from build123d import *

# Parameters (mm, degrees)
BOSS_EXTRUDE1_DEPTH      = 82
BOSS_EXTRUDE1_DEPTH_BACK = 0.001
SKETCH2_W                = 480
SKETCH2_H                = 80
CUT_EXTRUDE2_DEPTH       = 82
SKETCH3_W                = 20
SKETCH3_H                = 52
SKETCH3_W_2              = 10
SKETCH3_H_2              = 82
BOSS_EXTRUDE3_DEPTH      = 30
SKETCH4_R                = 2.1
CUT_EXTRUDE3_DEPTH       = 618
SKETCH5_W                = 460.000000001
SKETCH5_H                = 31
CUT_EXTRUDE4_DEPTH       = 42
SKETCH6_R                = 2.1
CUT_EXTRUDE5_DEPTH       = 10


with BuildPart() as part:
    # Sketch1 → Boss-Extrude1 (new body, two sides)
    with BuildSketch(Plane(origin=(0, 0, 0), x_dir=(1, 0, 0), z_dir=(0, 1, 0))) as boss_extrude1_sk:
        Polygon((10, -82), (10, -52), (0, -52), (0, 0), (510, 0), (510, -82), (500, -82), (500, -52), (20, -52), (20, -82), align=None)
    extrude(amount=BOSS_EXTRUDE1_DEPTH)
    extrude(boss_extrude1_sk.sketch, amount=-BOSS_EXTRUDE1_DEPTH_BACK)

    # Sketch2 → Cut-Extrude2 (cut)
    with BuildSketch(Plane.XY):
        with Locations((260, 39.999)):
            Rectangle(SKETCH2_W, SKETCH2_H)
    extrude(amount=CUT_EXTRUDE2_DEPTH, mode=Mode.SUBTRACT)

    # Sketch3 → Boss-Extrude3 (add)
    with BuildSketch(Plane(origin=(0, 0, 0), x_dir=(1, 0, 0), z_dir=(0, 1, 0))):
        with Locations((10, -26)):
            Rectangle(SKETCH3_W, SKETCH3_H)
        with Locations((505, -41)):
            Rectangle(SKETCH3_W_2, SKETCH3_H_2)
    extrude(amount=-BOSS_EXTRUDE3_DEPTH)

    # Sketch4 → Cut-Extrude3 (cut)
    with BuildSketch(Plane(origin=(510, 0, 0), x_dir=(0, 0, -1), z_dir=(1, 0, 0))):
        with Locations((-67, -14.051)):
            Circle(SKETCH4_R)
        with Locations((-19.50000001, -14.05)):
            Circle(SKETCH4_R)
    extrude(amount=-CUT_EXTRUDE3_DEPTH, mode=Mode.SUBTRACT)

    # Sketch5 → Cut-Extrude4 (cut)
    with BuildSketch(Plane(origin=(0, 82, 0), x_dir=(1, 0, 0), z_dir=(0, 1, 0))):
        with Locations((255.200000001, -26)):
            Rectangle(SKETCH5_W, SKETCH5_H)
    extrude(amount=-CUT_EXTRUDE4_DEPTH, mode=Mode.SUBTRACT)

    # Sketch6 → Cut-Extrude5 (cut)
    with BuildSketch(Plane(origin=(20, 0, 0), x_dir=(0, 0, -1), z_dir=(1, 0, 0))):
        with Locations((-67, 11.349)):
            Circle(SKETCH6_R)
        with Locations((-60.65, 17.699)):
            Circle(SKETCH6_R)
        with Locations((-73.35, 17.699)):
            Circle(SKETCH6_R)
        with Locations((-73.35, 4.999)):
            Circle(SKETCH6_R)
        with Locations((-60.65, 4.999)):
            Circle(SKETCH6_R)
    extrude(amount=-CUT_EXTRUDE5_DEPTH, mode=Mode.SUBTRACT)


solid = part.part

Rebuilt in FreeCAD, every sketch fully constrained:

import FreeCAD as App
import Part
import Sketcher
Q = App.Units.Quantity

doc = App.newDocument("Part")
body = doc.addObject("PartDesign::Body", "Body")

sketch1 = doc.addObject("Sketcher::SketchObject", "Sketch")
body.addObject(sketch1)
sketch1.AttachmentSupport = (doc.XZ_Plane, [""])
sketch1.MapMode = "FlatFace"
sketch1.addGeometry(Part.LineSegment(App.Vector(10, 52, 0), App.Vector(10, 82, 0)), False)
sketch1.addGeometry(Part.LineSegment(App.Vector(10, 82, 0), App.Vector(20, 82, 0)), False)
sketch1.addGeometry(Part.LineSegment(App.Vector(20, 82, 0), App.Vector(20, 52, 0)), False)
sketch1.addGeometry(Part.LineSegment(App.Vector(20, 52, 0), App.Vector(500, 52, 0)), False)
sketch1.addGeometry(Part.LineSegment(App.Vector(500, 52, 0), App.Vector(500, 82, 0)), False)
sketch1.addGeometry(Part.LineSegment(App.Vector(500, 82, 0), App.Vector(510, 82, 0)), False)
sketch1.addGeometry(Part.LineSegment(App.Vector(510, 82, 0), App.Vector(510, 0, 0)), False)
sketch1.addGeometry(Part.LineSegment(App.Vector(510, 0, 0), App.Vector(0, 0, 0)), False)
sketch1.addGeometry(Part.LineSegment(App.Vector(0, 0, 0), App.Vector(0, 52, 0)), False)
sketch1.addGeometry(Part.LineSegment(App.Vector(0, 52, 0), App.Vector(10, 52, 0)), False)
sketch1.addConstraint(Sketcher.Constraint("Coincident", 0, 2, 1, 1))
sketch1.addConstraint(Sketcher.Constraint("Coincident", 1, 2, 2, 1))
sketch1.addConstraint(Sketcher.Constraint("Coincident", 2, 2, 3, 1))
sketch1.addConstraint(Sketcher.Constraint("Coincident", 3, 2, 4, 1))
sketch1.addConstraint(Sketcher.Constraint("Coincident", 4, 2, 5, 1))
sketch1.addConstraint(Sketcher.Constraint("Coincident", 5, 2, 6, 1))
sketch1.addConstraint(Sketcher.Constraint("Coincident", 6, 2, 7, 1))
sketch1.addConstraint(Sketcher.Constraint("Coincident", 7, 2, 8, 1))
sketch1.addConstraint(Sketcher.Constraint("Coincident", 8, 2, 9, 1))
sketch1.addConstraint(Sketcher.Constraint("Coincident", 9, 2, 0, 1))
sketch1.addConstraint(Sketcher.Constraint("Vertical", 0))
sketch1.addConstraint(Sketcher.Constraint("Horizontal", 1))
sketch1.addConstraint(Sketcher.Constraint("Vertical", 2))
sketch1.addConstraint(Sketcher.Constraint("Horizontal", 3))
sketch1.addConstraint(Sketcher.Constraint("Vertical", 4))
sketch1.addConstraint(Sketcher.Constraint("Horizontal", 5))
sketch1.addConstraint(Sketcher.Constraint("Vertical", 6))
sketch1.addConstraint(Sketcher.Constraint("Horizontal", 7))
sketch1.addConstraint(Sketcher.Constraint("Vertical", 8))
sketch1.addConstraint(Sketcher.Constraint("Horizontal", 9))
sketch1.addConstraint(Sketcher.Constraint("Coincident", 7, 2, -1, 1))
sketch1.addConstraint(Sketcher.Constraint("Horizontal", 1, 2, 4, 2))
sketch1.addConstraint(Sketcher.Constraint("Horizontal", 3, 2, 8, 2))
sketch1.addConstraint(Sketcher.Constraint("Equal", 1, 5))
sketch1.addConstraint(Sketcher.Constraint("Equal", 5, 9))
sketch1.addConstraint(Sketcher.Constraint("DistanceX", 1, 1, 1, 2, Q("10 mm")))
sketch1.addConstraint(Sketcher.Constraint("DistanceX", 3, 1, 3, 2, Q("480 mm")))
sketch1.addConstraint(Sketcher.Constraint("DistanceY", 0, 1, 0, 2, Q("30 mm")))
sketch1.addConstraint(Sketcher.Constraint("DistanceY", 6, 2, 6, 1, Q("82 mm")))
pad1 = doc.addObject("PartDesign::Pad", "Pad")
body.addObject(pad1)
pad1.Profile = sketch1
pad1.Type = "TwoLengths"
pad1.Length = 82
pad1.Length2 = 0.001
pad1.Reversed = True

sketch2 = doc.addObject("Sketcher::SketchObject", "Sketch001")
body.addObject(sketch2)
sketch2.AttachmentSupport = (doc.XY_Plane, [""])
sketch2.MapMode = "FlatFace"
sketch2.addGeometry(Part.LineSegment(App.Vector(20, 79.999, 0), App.Vector(20, -0.001, 0)), False)
sketch2.addGeometry(Part.LineSegment(App.Vector(20, -0.001, 0), App.Vector(500, -0.001, 0)), False)
sketch2.addGeometry(Part.LineSegment(App.Vector(500, -0.001, 0), App.Vector(500, 79.999, 0)), False)
sketch2.addGeometry(Part.LineSegment(App.Vector(500, 79.999, 0), App.Vector(20, 79.999, 0)), False)
sketch2.addConstraint(Sketcher.Constraint("Coincident", 0, 2, 1, 1))
sketch2.addConstraint(Sketcher.Constraint("Coincident", 1, 2, 2, 1))
sketch2.addConstraint(Sketcher.Constraint("Coincident", 2, 2, 3, 1))
sketch2.addConstraint(Sketcher.Constraint("Coincident", 3, 2, 0, 1))
sketch2.addConstraint(Sketcher.Constraint("Vertical", 0))
sketch2.addConstraint(Sketcher.Constraint("Horizontal", 1))
sketch2.addConstraint(Sketcher.Constraint("Vertical", 2))
sketch2.addConstraint(Sketcher.Constraint("Horizontal", 3))
sketch2.addConstraint(Sketcher.Constraint("DistanceX", 1, 1, 1, 2, Q("480 mm")))
sketch2.addConstraint(Sketcher.Constraint("DistanceY", 0, 2, 0, 1, Q("80 mm")))
sketch2.addConstraint(Sketcher.Constraint("DistanceX", -1, 1, 0, 2, Q("20 mm")))
sketch2.addConstraint(Sketcher.Constraint("DistanceY", 0, 2, -1, 1, Q("0.001 mm")))
pocket1 = doc.addObject("PartDesign::Pocket", "Pocket")
body.addObject(pocket1)
pocket1.Profile = sketch2
pocket1.Length = 82
pocket1.Reversed = True

sketch3 = doc.addObject("Sketcher::SketchObject", "Sketch002")
body.addObject(sketch3)
sketch3.AttachmentSupport = (doc.XZ_Plane, [""])
sketch3.MapMode = "FlatFace"
sketch3.addGeometry(Part.LineSegment(App.Vector(0, 0, 0), App.Vector(0, 52, 0)), False)
sketch3.addGeometry(Part.LineSegment(App.Vector(0, 52, 0), App.Vector(20, 52, 0)), False)
sketch3.addGeometry(Part.LineSegment(App.Vector(20, 52, 0), App.Vector(20, 0, 0)), False)
sketch3.addGeometry(Part.LineSegment(App.Vector(20, 0, 0), App.Vector(0, 0, 0)), False)
sketch3.addGeometry(Part.LineSegment(App.Vector(500, 0, 0), App.Vector(500, 82, 0)), False)
sketch3.addGeometry(Part.LineSegment(App.Vector(500, 82, 0), App.Vector(510, 82, 0)), False)
sketch3.addGeometry(Part.LineSegment(App.Vector(510, 82, 0), App.Vector(510, 0, 0)), False)
sketch3.addGeometry(Part.LineSegment(App.Vector(510, 0, 0), App.Vector(500, 0, 0)), False)
sketch3.addConstraint(Sketcher.Constraint("Coincident", 0, 2, 1, 1))
sketch3.addConstraint(Sketcher.Constraint("Coincident", 1, 2, 2, 1))
sketch3.addConstraint(Sketcher.Constraint("Coincident", 2, 2, 3, 1))
sketch3.addConstraint(Sketcher.Constraint("Coincident", 3, 2, 0, 1))
sketch3.addConstraint(Sketcher.Constraint("Coincident", 4, 2, 5, 1))
sketch3.addConstraint(Sketcher.Constraint("Coincident", 5, 2, 6, 1))
sketch3.addConstraint(Sketcher.Constraint("Coincident", 6, 2, 7, 1))
sketch3.addConstraint(Sketcher.Constraint("Coincident", 7, 2, 4, 1))
sketch3.addConstraint(Sketcher.Constraint("Vertical", 0))
sketch3.addConstraint(Sketcher.Constraint("Horizontal", 1))
sketch3.addConstraint(Sketcher.Constraint("Vertical", 2))
sketch3.addConstraint(Sketcher.Constraint("Horizontal", 3))
sketch3.addConstraint(Sketcher.Constraint("Vertical", 4))
sketch3.addConstraint(Sketcher.Constraint("Horizontal", 5))
sketch3.addConstraint(Sketcher.Constraint("Vertical", 6))
sketch3.addConstraint(Sketcher.Constraint("Horizontal", 7))
sketch3.addConstraint(Sketcher.Constraint("Coincident", 3, 2, -1, 1))
sketch3.addConstraint(Sketcher.Constraint("PointOnObject", 6, 2, -1))
sketch3.addConstraint(Sketcher.Constraint("DistanceX", 1, 1, 1, 2, Q("20 mm")))
sketch3.addConstraint(Sketcher.Constraint("DistanceX", 5, 1, 5, 2, Q("10 mm")))
sketch3.addConstraint(Sketcher.Constraint("DistanceY", 0, 1, 0, 2, Q("52 mm")))
sketch3.addConstraint(Sketcher.Constraint("DistanceY", 4, 1, 4, 2, Q("82 mm")))
sketch3.addConstraint(Sketcher.Constraint("DistanceX", -1, 1, 4, 2, Q("500 mm")))
pad2 = doc.addObject("PartDesign::Pad", "Pad001")
body.addObject(pad2)
pad2.Profile = sketch3
pad2.Length = 30

sketch4 = doc.addObject("Sketcher::SketchObject", "Sketch003")
body.addObject(sketch4)
sketch4.AttachmentSupport = (doc.YZ_Plane, [""])
sketch4.MapMode = "FlatFace"
sketch4.AttachmentOffset = App.Placement(App.Vector(0, 0, 510), App.Rotation())
sketch4.addGeometry(Part.Circle(App.Vector(-14.051, 67, 0), App.Vector(0, 0, 1), 2.1), False)
sketch4.addGeometry(Part.Circle(App.Vector(-14.05, 19.5, 0), App.Vector(0, 0, 1), 2.1), False)
sketch4.addConstraint(Sketcher.Constraint("Equal", 0, 1))
sketch4.addConstraint(Sketcher.Constraint("Diameter", 0, Q("4.2 mm")))
sketch4.addConstraint(Sketcher.Constraint("DistanceY", -1, 1, 0, 3, Q("67 mm")))
sketch4.addConstraint(Sketcher.Constraint("DistanceY", -1, 1, 1, 3, Q("19.5 mm")))
sketch4.addConstraint(Sketcher.Constraint("DistanceX", 1, 3, -1, 1, Q("14.05 mm")))
sketch4.addConstraint(Sketcher.Constraint("DistanceX", 0, 3, -1, 1, Q("14.051 mm")))
pocket2 = doc.addObject("PartDesign::Pocket", "Pocket001")
body.addObject(pocket2)
pocket2.Profile = sketch4
pocket2.Length = 618

sketch5 = doc.addObject("Sketcher::SketchObject", "Sketch004")
body.addObject(sketch5)
sketch5.AttachmentSupport = (doc.XZ_Plane, [""])
sketch5.MapMode = "FlatFace"
sketch5.AttachmentOffset = App.Placement(App.Vector(0, 0, -82), App.Rotation())
sketch5.addGeometry(Part.LineSegment(App.Vector(25.2, 10.5, 0), App.Vector(25.2, 41.5, 0)), False)
sketch5.addGeometry(Part.LineSegment(App.Vector(25.2, 41.5, 0), App.Vector(485.2, 41.5, 0)), False)
sketch5.addGeometry(Part.LineSegment(App.Vector(485.2, 41.5, 0), App.Vector(485.2, 10.5, 0)), False)
sketch5.addGeometry(Part.LineSegment(App.Vector(485.2, 10.5, 0), App.Vector(25.2, 10.5, 0)), False)
sketch5.addConstraint(Sketcher.Constraint("Coincident", 0, 2, 1, 1))
sketch5.addConstraint(Sketcher.Constraint("Coincident", 1, 2, 2, 1))
sketch5.addConstraint(Sketcher.Constraint("Coincident", 2, 2, 3, 1))
sketch5.addConstraint(Sketcher.Constraint("Coincident", 3, 2, 0, 1))
sketch5.addConstraint(Sketcher.Constraint("Vertical", 0))
sketch5.addConstraint(Sketcher.Constraint("Horizontal", 1))
sketch5.addConstraint(Sketcher.Constraint("Vertical", 2))
sketch5.addConstraint(Sketcher.Constraint("Horizontal", 3))
sketch5.addConstraint(Sketcher.Constraint("DistanceX", 1, 1, 1, 2, Q("460 mm")))
sketch5.addConstraint(Sketcher.Constraint("DistanceY", 0, 1, 0, 2, Q("31 mm")))
sketch5.addConstraint(Sketcher.Constraint("DistanceX", -1, 1, 0, 2, Q("25.2 mm")))
sketch5.addConstraint(Sketcher.Constraint("DistanceY", -1, 1, 0, 2, Q("41.5 mm")))
pocket3 = doc.addObject("PartDesign::Pocket", "Pocket002")
body.addObject(pocket3)
pocket3.Profile = sketch5
pocket3.Length = 42
pocket3.Reversed = True

sketch6 = doc.addObject("Sketcher::SketchObject", "Sketch005")
body.addObject(sketch6)
sketch6.AttachmentSupport = (doc.YZ_Plane, [""])
sketch6.MapMode = "FlatFace"
sketch6.AttachmentOffset = App.Placement(App.Vector(0, 0, 20), App.Rotation())
sketch6.addGeometry(Part.Circle(App.Vector(11.349, 67, 0), App.Vector(0, 0, 1), 2.1), False)
sketch6.addGeometry(Part.Circle(App.Vector(17.699, 60.65, 0), App.Vector(0, 0, 1), 2.1), False)
sketch6.addGeometry(Part.Circle(App.Vector(17.699, 73.35, 0), App.Vector(0, 0, 1), 2.1), False)
sketch6.addGeometry(Part.Circle(App.Vector(4.999, 73.35, 0), App.Vector(0, 0, 1), 2.1), False)
sketch6.addGeometry(Part.Circle(App.Vector(4.999, 60.65, 0), App.Vector(0, 0, 1), 2.1), False)
sketch6.addConstraint(Sketcher.Constraint("Equal", 0, 1))
sketch6.addConstraint(Sketcher.Constraint("Equal", 1, 2))
sketch6.addConstraint(Sketcher.Constraint("Equal", 2, 3))
sketch6.addConstraint(Sketcher.Constraint("Equal", 3, 4))
sketch6.addConstraint(Sketcher.Constraint("Horizontal", 2, 3, 3, 3))
sketch6.addConstraint(Sketcher.Constraint("Horizontal", 1, 3, 4, 3))
sketch6.addConstraint(Sketcher.Constraint("Vertical", 1, 3, 2, 3))
sketch6.addConstraint(Sketcher.Constraint("Vertical", 3, 3, 4, 3))
sketch6.addConstraint(Sketcher.Constraint("Diameter", 0, Q("4.2 mm")))
sketch6.addConstraint(Sketcher.Constraint("DistanceY", -1, 1, 0, 3, Q("67 mm")))
sketch6.addConstraint(Sketcher.Constraint("DistanceY", 1, 3, 2, 3, Q("12.7 mm")))
sketch6.addConstraint(Sketcher.Constraint("DistanceX", 3, 3, 2, 3, Q("12.7 mm")))
sketch6.addConstraint(Sketcher.Constraint("DistanceY", -1, 1, 1, 3, Q("60.65 mm")))
sketch6.addConstraint(Sketcher.Constraint("DistanceX", 0, 3, 1, 3, Q("6.35 mm")))
sketch6.addConstraint(Sketcher.Constraint("DistanceX", -1, 1, 0, 3, Q("11.349 mm")))
pocket4 = doc.addObject("PartDesign::Pocket", "Pocket003")
body.addObject(pocket4)
pocket4.Profile = sketch6
pocket4.Length = 10

doc.recompute()
